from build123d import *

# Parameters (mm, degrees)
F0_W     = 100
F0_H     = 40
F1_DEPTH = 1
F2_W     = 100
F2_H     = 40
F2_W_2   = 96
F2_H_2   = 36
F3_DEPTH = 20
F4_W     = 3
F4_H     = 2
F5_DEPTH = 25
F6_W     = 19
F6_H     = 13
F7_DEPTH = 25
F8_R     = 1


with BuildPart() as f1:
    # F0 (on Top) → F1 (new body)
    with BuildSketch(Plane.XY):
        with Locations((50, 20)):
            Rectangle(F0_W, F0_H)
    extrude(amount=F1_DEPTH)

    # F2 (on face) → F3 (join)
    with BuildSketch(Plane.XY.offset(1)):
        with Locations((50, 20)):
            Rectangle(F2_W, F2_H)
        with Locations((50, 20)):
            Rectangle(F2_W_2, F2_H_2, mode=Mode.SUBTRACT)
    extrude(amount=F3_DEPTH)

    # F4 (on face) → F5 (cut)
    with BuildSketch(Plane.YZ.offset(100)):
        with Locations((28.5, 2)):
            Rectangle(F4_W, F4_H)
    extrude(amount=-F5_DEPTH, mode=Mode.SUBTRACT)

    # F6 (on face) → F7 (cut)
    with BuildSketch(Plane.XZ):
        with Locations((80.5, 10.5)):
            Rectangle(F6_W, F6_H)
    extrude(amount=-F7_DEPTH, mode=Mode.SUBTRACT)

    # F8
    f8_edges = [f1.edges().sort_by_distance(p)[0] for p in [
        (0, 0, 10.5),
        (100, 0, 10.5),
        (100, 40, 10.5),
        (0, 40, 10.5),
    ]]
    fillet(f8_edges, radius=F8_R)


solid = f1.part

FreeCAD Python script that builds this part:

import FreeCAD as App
import Part
import Sketcher

V = App.Vector
Q = App.Units.Quantity


def edges_at(feature, points):
    """Names of the edges that pass closest to the given points."""
    edges = feature.Shape.Edges
    near = lambda p: min(range(len(edges)), key=lambda i: edges[i].distToShape(Part.Vertex(*p))[0])
    return sorted({f"Edge{near(p) + 1}" for p in points})


def add_polygon(sketch, points):
    """Adds a closed chain of lines whose ends are joined by coincident constraints."""
    first, n = sketch.GeometryCount, len(points)
    for a, b in zip(points, points[1:] + points[:1]):
        sketch.addGeometry(Part.LineSegment(App.Vector(*a, 0), App.Vector(*b, 0)), False)
    for i in range(n):
        sketch.addConstraint(Sketcher.Constraint("Coincident", first + i, 2, first + (i + 1) % n, 1))

doc = App.newDocument("Part")
params = doc.addObject("Spreadsheet::Sheet", "Params")
for row, (alias, value) in enumerate([
    ("sketch1_width", "100 mm"),
    ("sketch1_height", "40 mm"),
    ("pad1_length", "1 mm"),
    ("sketch2_width", "100 mm"),
    ("sketch2_width2", "96 mm"),
    ("sketch2_height", "40 mm"),
    ("sketch2_height2", "36 mm"),
    ("pad2_length", "20 mm"),
    ("sketch3_width", "3 mm"),
    ("sketch3_height", "2 mm"),
    ("pocket1_length", "25 mm"),
    ("sketch4_width", "19 mm"),
    ("sketch4_height", "13 mm"),
    ("pocket2_length", "25 mm"),
    ("fillet_radius", "1 mm"),
], start=1):
    params.set(f"A{row}", alias)
    params.set(f"B{row}", "=" + value)
    params.setAlias(f"B{row}", alias)

body = doc.addObject("PartDesign::Body", "Body")

sketch1 = body.newObject("Sketcher::SketchObject", "Sketch")
sketch1.AttachmentSupport = (doc.getObject("XY_Plane"), [""])
sketch1.MapMode = "FlatFace"
add_polygon(sketch1, [(0, 40), (0, 0), (100, 0), (100, 40)])
sketch1.addConstraint([
    Sketcher.Constraint("Vertical", 0),
    Sketcher.Constraint("Horizontal", 1),
    Sketcher.Constraint("Vertical", 2),
    Sketcher.Constraint("Horizontal", 3),
    Sketcher.Constraint("Coincident", 0, 2, -1, 1),
    Sketcher.Constraint("DistanceX", 1, 1, 1, 2, Q("100 mm")),
    Sketcher.Constraint("DistanceY", 0, 2, 0, 1, Q("40 mm")),
])
sketch1.setExpression("Constraints[9]", "Params.sketch1_width")
sketch1.setExpression("Constraints[10]", "Params.sketch1_height")
pad1 = body.newObject("PartDesign::Pad", "Pad")
pad1.Profile = sketch1
pad1.setExpression("Length", "Params.pad1_length")

sketch2 = body.newObject("Sketcher::SketchObject", "Sketch001")
sketch2.AttachmentSupport = (doc.getObject("XY_Plane"), [""])
sketch2.MapMode = "FlatFace"
sketch2.AttachmentOffset = App.Placement(V(0, 0, 1), App.Rotation())
add_polygon(sketch2, [(0, 40), (0, 0), (100, 0), (100, 40)])
add_polygon(sketch2, [(98, 2), (2, 2), (2, 38), (98, 38)])
sketch2.addConstraint([
    Sketcher.Constraint("Vertical", 0),
    Sketcher.Constraint("Horizontal", 1),
    Sketcher.Constraint("Vertical", 2),
    Sketcher.Constraint("Horizontal", 3),
    Sketcher.Constraint("Horizontal", 4),
    Sketcher.Constraint("Vertical", 5),
    Sketcher.Constraint("Horizontal", 6),
    Sketcher.Constraint("Vertical", 7),
    Sketcher.Constraint("Coincident", 0, 2, -1, 1),
    Sketcher.Constraint("DistanceX", 1, 1, 1, 2, Q("100 mm")),
    Sketcher.Constraint("DistanceX", 4, 2, 4, 1, Q("96 mm")),
    Sketcher.Constraint("DistanceY", 0, 2, 0, 1, Q("40 mm")),
    Sketcher.Constraint("DistanceY", 5, 1, 5, 2, Q("36 mm")),
    Sketcher.Constraint("DistanceX", -1, 1, 4, 2, Q("2 mm")),
    Sketcher.Constraint("DistanceY", -1, 1, 4, 2, Q("2 mm")),
])
sketch2.setExpression("Constraints[17]", "Params.sketch2_width")
sketch2.setExpression("Constraints[18]", "Params.sketch2_width2")
sketch2.setExpression("Constraints[19]", "Params.sketch2_height")
sketch2.setExpression("Constraints[20]", "Params.sketch2_height2")
pad2 = body.newObject("PartDesign::Pad", "Pad001")
pad2.Profile = sketch2
pad2.setExpression("Length", "Params.pad2_length")

sketch3 = body.newObject("Sketcher::SketchObject", "Sketch002")
sketch3.AttachmentSupport = (doc.getObject("YZ_Plane"), [""])
sketch3.MapMode = "FlatFace"
sketch3.AttachmentOffset = App.Placement(V(0, 0, 100), App.Rotation())
add_polygon(sketch3, [(27, 3), (27, 1), (30, 1), (30, 3)])
sketch3.addConstraint([
    Sketcher.Constraint("Vertical", 0),
    Sketcher.Constraint("Horizontal", 1),
    Sketcher.Constraint("Vertical", 2),
    Sketcher.Constraint("Horizontal", 3),
    Sketcher.Constraint("DistanceX", 1, 1, 1, 2, Q("3 mm")),
    Sketcher.Constraint("DistanceY", 0, 2, 0, 1, Q("2 mm")),
    Sketcher.Constraint("DistanceX", -1, 1, 0, 2, Q("27 mm")),
    Sketcher.Constraint("DistanceY", -1, 1, 0, 2, Q("1 mm")),
])
sketch3.setExpression("Constraints[8]", "Params.sketch3_width")
sketch3.setExpression("Constraints[9]", "Params.sketch3_height")
pocket1 = body.newObject("PartDesign::Pocket", "Pocket")
pocket1.Profile = sketch3
pocket1.setExpression("Length", "Params.pocket1_length")

sketch4 = body.newObject("Sketcher::SketchObject", "Sketch003")
sketch4.AttachmentSupport = (doc.getObject("XZ_Plane"), [""])
sketch4.MapMode = "FlatFace"
add_polygon(sketch4, [(71, 17), (71, 4), (90, 4), (90, 17)])
sketch4.addConstraint([
    Sketcher.Constraint("Vertical", 0),
    Sketcher.Constraint("Horizontal", 1),
    Sketcher.Constraint("Vertical", 2),
    Sketcher.Constraint("Horizontal", 3),
    Sketcher.Constraint("DistanceX", 1, 1, 1, 2, Q("19 mm")),
    Sketcher.Constraint("DistanceY", 0, 2, 0, 1, Q("13 mm")),
    Sketcher.Constraint("DistanceX", -1, 1, 0, 2, Q("71 mm")),
    Sketcher.Constraint("DistanceY", -1, 1, 0, 2, Q("4 mm")),
])
sketch4.setExpression("Constraints[8]", "Params.sketch4_width")
sketch4.setExpression("Constraints[9]", "Params.sketch4_height")
pocket2 = body.newObject("PartDesign::Pocket", "Pocket001")
pocket2.Profile = sketch4
pocket2.setExpression("Length", "Params.pocket2_length")
doc.recompute()

fillet = body.newObject("PartDesign::Fillet", "Fillet")
fillet.Base = (pocket2, edges_at(pocket2, [
    (0, 0, 10.5),
    (100, 0, 10.5),
    (100, 40, 10.5),
    (0, 40, 10.5),
]))
fillet.setExpression("Radius", "Params.fillet_radius")

doc.recompute()
